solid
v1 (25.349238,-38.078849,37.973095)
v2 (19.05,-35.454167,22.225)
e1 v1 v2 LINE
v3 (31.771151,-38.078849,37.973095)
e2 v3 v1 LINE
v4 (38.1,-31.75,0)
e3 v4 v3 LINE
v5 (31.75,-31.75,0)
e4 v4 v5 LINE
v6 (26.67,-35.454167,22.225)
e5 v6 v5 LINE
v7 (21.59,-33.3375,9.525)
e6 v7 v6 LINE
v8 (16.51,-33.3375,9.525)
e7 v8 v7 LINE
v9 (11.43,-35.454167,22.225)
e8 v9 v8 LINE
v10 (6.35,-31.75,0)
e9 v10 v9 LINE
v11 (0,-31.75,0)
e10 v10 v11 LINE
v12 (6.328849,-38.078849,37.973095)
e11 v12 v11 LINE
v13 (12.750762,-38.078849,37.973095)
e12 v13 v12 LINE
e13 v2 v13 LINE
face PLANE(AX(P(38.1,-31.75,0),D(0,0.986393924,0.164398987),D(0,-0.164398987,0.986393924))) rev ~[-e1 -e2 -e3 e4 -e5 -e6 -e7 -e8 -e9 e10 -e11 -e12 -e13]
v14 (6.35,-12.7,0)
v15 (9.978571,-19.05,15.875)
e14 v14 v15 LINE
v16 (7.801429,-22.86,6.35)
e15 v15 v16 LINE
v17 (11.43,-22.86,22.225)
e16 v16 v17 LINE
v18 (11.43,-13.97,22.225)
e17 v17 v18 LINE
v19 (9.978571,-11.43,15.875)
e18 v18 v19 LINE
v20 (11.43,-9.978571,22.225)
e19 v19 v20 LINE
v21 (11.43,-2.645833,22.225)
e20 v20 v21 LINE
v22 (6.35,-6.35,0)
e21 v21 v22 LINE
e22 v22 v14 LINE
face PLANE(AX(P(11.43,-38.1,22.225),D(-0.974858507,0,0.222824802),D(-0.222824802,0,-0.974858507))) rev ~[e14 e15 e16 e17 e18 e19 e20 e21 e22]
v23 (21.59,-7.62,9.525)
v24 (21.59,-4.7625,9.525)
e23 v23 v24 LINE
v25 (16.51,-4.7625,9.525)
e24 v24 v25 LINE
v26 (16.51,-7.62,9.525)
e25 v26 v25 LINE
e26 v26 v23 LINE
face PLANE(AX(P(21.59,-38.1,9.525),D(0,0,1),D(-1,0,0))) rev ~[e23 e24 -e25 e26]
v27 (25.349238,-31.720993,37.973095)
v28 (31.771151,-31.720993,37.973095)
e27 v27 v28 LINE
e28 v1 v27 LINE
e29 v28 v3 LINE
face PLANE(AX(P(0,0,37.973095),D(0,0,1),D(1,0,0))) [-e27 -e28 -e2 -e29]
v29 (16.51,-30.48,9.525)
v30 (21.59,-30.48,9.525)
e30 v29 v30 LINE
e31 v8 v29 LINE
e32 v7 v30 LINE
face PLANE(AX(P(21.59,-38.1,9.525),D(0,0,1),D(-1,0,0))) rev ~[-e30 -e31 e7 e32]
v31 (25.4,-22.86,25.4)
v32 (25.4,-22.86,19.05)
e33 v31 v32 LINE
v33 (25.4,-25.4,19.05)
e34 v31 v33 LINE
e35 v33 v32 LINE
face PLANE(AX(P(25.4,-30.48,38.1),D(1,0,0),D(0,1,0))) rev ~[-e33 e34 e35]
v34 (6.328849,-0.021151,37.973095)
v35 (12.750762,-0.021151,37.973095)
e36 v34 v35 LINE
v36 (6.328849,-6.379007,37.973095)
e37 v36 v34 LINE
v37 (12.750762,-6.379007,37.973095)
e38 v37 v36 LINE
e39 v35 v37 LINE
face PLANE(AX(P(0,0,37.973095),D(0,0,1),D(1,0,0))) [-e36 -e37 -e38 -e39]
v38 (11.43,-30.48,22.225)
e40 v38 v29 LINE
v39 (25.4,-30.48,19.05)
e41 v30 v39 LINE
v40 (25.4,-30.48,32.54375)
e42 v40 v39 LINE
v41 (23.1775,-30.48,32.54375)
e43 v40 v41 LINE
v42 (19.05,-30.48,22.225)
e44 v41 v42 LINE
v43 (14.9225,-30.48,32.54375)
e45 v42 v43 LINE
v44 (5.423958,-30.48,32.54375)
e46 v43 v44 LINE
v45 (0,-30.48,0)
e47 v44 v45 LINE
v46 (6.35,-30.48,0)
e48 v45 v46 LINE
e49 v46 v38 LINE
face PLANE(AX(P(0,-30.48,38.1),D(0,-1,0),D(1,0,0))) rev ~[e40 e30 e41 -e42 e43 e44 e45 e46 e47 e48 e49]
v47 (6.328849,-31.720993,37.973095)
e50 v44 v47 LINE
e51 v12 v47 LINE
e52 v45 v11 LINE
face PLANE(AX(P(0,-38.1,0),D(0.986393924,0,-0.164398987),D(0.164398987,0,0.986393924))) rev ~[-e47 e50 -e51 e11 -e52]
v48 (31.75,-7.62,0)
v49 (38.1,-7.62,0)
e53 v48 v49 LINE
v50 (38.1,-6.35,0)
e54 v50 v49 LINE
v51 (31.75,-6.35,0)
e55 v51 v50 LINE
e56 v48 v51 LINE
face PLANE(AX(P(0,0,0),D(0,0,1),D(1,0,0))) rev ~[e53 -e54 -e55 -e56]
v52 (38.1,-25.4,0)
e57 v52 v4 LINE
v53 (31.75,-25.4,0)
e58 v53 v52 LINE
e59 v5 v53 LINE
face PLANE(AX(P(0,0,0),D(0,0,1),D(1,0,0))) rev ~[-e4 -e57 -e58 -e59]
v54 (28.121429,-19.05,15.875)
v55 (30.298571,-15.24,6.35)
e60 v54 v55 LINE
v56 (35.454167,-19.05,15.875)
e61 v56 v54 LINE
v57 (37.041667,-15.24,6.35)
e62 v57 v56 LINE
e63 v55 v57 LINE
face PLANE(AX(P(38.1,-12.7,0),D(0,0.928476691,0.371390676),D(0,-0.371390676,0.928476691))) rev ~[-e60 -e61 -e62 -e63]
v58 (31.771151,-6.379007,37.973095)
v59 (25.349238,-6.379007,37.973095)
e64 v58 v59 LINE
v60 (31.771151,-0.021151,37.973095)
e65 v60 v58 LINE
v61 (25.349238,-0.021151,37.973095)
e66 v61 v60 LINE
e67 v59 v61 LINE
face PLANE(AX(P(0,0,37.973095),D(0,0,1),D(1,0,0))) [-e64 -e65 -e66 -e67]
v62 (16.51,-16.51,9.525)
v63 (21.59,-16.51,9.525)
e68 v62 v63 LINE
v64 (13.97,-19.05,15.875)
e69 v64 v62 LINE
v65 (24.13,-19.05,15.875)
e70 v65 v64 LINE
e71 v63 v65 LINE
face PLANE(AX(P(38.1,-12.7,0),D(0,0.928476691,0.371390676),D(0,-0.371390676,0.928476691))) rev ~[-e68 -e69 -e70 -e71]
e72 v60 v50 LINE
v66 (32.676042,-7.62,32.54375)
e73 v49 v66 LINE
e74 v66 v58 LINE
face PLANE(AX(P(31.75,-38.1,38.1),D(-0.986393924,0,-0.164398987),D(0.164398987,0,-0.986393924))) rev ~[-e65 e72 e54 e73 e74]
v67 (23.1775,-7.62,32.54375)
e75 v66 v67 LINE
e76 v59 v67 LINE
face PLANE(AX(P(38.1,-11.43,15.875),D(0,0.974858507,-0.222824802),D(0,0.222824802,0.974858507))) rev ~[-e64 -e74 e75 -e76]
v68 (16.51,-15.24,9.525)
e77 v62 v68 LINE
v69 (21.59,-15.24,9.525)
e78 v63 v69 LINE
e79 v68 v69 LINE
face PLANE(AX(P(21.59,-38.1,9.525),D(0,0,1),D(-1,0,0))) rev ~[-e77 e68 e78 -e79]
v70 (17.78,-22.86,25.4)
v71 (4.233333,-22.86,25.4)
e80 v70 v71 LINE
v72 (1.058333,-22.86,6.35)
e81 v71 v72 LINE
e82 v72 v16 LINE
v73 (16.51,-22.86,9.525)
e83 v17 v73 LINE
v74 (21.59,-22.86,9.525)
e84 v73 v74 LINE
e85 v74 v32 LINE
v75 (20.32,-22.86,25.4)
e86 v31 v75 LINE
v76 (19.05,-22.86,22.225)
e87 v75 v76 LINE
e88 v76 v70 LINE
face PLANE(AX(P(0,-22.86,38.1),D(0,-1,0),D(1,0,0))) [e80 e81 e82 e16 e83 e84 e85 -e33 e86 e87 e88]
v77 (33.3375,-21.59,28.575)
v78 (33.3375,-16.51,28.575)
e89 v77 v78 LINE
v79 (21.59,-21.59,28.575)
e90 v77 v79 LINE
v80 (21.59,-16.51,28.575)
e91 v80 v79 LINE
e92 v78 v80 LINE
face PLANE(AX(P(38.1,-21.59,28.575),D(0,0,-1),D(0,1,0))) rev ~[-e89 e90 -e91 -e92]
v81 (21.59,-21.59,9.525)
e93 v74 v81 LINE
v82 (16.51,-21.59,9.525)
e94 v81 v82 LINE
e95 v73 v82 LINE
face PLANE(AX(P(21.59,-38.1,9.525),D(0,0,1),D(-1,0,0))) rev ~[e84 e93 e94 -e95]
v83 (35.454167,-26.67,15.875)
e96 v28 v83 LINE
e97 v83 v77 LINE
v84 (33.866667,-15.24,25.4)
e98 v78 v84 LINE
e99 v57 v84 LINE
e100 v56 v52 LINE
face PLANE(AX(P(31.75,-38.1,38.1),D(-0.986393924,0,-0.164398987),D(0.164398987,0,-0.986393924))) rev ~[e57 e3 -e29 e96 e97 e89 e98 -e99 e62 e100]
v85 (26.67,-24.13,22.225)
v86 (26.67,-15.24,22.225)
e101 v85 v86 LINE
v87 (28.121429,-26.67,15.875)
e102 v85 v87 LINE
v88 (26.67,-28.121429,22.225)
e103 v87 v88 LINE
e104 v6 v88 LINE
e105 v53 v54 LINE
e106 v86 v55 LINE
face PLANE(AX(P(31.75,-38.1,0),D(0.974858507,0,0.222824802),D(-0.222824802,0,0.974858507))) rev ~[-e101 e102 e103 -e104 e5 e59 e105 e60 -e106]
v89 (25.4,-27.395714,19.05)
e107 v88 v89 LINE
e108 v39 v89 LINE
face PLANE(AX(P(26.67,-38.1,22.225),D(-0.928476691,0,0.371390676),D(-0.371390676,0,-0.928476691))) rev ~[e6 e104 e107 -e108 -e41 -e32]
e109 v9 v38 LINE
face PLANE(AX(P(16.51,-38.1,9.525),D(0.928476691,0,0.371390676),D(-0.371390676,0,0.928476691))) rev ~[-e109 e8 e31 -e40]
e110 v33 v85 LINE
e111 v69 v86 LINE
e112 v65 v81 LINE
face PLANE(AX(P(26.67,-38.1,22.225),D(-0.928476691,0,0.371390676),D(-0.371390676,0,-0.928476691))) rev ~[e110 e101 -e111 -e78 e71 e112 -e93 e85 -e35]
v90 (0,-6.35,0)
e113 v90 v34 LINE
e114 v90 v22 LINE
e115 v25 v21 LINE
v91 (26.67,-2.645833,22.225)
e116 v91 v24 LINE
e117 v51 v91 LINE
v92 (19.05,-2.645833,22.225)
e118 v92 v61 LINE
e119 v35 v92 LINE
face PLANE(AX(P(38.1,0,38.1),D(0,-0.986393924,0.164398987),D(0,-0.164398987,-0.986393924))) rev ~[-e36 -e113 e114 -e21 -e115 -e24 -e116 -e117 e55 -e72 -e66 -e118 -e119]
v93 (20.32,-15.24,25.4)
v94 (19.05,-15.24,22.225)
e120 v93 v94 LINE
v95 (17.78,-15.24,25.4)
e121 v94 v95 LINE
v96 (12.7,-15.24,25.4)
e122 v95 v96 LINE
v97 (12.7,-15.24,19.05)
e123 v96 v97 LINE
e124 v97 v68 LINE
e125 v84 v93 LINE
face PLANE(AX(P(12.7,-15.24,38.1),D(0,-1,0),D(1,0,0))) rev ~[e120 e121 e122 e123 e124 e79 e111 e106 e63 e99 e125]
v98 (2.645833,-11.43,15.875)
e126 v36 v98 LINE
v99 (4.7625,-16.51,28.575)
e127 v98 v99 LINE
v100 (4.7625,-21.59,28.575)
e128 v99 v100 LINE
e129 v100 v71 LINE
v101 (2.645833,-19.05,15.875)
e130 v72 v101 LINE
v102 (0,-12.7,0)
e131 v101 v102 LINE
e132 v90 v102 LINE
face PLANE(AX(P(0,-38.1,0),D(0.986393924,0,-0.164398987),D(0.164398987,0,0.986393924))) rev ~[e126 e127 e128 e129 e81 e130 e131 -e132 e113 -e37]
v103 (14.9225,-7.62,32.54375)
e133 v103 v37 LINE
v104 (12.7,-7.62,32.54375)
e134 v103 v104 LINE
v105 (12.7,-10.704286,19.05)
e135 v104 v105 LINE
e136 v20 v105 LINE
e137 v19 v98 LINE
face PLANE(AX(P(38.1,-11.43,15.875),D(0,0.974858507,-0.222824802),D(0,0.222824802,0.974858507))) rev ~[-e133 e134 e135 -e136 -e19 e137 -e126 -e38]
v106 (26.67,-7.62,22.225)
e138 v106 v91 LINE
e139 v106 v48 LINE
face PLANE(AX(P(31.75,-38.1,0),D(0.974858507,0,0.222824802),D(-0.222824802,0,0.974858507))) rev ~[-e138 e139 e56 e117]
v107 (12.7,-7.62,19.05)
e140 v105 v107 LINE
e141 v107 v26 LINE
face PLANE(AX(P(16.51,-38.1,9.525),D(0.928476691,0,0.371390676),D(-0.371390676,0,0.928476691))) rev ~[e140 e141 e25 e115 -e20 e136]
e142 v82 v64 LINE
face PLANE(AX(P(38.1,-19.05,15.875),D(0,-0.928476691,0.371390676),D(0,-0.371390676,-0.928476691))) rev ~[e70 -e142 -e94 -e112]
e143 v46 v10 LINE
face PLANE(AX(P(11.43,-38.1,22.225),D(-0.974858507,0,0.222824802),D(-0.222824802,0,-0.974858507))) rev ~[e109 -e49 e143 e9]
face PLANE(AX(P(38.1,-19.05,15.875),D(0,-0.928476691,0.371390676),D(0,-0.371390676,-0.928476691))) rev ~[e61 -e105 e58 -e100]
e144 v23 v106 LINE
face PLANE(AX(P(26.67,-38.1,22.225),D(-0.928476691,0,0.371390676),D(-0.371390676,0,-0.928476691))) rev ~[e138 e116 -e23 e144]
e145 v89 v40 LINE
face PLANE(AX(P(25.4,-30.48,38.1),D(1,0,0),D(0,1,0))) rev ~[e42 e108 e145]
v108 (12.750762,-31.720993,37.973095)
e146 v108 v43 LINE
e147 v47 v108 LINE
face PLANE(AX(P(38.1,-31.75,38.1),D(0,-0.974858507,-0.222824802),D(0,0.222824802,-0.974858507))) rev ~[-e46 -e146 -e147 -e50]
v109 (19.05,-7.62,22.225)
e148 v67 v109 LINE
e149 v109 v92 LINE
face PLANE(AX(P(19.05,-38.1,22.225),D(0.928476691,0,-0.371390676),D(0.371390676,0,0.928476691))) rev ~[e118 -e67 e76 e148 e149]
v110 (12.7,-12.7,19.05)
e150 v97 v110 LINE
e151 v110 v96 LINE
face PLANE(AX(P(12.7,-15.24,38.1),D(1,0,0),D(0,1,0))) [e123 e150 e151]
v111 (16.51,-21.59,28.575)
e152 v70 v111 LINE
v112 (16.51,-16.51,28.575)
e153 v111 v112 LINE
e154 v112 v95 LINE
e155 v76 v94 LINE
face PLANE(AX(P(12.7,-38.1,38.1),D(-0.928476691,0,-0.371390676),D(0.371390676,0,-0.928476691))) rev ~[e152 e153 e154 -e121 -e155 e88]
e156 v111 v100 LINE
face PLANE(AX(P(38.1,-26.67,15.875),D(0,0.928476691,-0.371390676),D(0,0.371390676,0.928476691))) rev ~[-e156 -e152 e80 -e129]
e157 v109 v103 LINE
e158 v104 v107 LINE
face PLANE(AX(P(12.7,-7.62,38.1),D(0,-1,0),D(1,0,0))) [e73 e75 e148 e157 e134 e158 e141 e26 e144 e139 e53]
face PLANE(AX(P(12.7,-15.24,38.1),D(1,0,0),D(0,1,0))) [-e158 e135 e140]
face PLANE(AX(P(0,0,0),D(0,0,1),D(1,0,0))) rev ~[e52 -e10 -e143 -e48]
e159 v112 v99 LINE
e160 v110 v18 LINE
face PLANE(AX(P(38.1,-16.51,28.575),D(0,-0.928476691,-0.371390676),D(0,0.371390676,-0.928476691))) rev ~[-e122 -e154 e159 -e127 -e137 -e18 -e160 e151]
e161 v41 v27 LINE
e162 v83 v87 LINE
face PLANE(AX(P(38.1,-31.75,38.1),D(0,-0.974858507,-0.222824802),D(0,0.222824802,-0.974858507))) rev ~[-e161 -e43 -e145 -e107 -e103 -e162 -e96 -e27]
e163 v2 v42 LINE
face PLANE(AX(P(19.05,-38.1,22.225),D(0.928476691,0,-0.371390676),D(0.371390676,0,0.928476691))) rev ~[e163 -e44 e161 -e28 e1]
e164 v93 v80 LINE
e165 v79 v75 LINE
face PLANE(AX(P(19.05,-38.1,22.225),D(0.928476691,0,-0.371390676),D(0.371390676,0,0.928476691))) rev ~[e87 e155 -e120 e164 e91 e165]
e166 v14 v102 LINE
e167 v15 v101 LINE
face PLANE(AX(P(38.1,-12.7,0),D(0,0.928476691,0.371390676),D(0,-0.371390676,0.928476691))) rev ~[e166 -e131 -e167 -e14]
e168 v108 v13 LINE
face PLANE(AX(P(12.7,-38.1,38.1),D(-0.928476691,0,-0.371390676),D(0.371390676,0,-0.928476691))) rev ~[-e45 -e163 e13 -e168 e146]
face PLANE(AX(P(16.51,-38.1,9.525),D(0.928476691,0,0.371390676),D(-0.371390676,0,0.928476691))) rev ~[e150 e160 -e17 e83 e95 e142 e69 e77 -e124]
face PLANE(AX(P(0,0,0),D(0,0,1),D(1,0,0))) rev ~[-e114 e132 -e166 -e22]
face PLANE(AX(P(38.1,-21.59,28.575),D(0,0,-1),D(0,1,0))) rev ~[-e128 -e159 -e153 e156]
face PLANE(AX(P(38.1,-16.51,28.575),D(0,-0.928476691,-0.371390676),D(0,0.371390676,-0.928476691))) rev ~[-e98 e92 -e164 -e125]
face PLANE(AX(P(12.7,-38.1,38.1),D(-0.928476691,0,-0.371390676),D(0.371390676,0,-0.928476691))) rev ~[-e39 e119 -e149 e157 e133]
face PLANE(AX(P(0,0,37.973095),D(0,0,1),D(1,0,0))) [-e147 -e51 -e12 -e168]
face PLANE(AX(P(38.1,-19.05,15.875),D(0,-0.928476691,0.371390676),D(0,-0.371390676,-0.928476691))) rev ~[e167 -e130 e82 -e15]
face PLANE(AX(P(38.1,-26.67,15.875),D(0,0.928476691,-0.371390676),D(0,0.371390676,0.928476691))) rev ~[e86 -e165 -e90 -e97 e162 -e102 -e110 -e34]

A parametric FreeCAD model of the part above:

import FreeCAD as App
import Part
import Sketcher
from FreeCAD import Vector
Q = App.Units.Quantity

doc = App.newDocument("Part")
body = doc.addObject("PartDesign::Body", "Body")

sketch1 = body.newObject("Sketcher::SketchObject", "Sketch")
sketch1.AttachmentSupport = (doc.getObject("XZ_Plane"), [""])
sketch1.MapMode = "FlatFace"
sketch1.addGeometry([
    Part.LineSegment(Vector(0, 38, 0), Vector(0, 0, 0)),
    Part.LineSegment(Vector(0, 0, 0), Vector(38, 0, 0)),
    Part.LineSegment(Vector(38, 0, 0), Vector(38, 38, 0)),
    Part.LineSegment(Vector(38, 38, 0), Vector(0, 38, 0)),
], False)
sketch1.addConstraint([
    Sketcher.Constraint("Coincident", 0, 2, 1, 1),
    Sketcher.Constraint("Coincident", 1, 2, 2, 1),
    Sketcher.Constraint("Coincident", 2, 2, 3, 1),
    Sketcher.Constraint("Coincident", 3, 2, 0, 1),
    Sketcher.Constraint("Vertical", 0),
    Sketcher.Constraint("Horizontal", 1),
    Sketcher.Constraint("Vertical", 2),
    Sketcher.Constraint("Horizontal", 3),
    Sketcher.Constraint("Coincident", 0, 2, -1, 1),
    Sketcher.Constraint("DistanceX", 1, 1, 1, 2, Q("1.5 in")),
    Sketcher.Constraint("DistanceY", 0, 2, 0, 1, 37.973095),
])
pad1 = body.newObject("PartDesign::Pad", "Pad")
pad1.Profile = sketch1
pad1.Length = Q("1.5 in")

sketch2 = body.newObject("Sketcher::SketchObject", "Sketch001")
sketch2.AttachmentSupport = (doc.getObject("YZ_Plane"), [""])
sketch2.MapMode = "FlatFace"
sketch2.AttachmentOffset = App.Placement(Vector(0, 0, 1.5 * 25.4), App.Rotation())
sketch2.addGeometry([
    Part.LineSegment(Vector(-11, 16, 0), Vector(-6, 38, 0)),
    Part.LineSegment(Vector(-6, 38, 0), Vector(-32, 38, 0)),
    Part.LineSegment(Vector(-32, 38, 0), Vector(-27, 16, 0)),
    Part.LineSegment(Vector(-27, 16, 0), Vector(-22, 29, 0)),
    Part.LineSegment(Vector(-22, 29, 0), Vector(-17, 29, 0)),
    Part.LineSegment(Vector(-17, 29, 0), Vector(-11, 16, 0)),
    Part.LineSegment(Vector(-6, 0, 0), Vector(0, 0, 0)),
    Part.LineSegment(Vector(0, 0, 0), Vector(0, 38, 0)),
    Part.LineSegment(Vector(0, 38, 0), Vector(-6, 0, 0)),
    Part.LineSegment(Vector(-25, 0, 0), Vector(-13, 0, 0)),
    Part.LineSegment(Vector(-13, 0, 0), Vector(-19, 16, 0)),
    Part.LineSegment(Vector(-19, 16, 0), Vector(-25, 0, 0)),
    Part.LineSegment(Vector(-32, 0, 0), Vector(-38, 38, 0)),
    Part.LineSegment(Vector(-38, 38, 0), Vector(-38, 0, 0)),
    Part.LineSegment(Vector(-38, 0, 0), Vector(-32, 0, 0)),
], False)
sketch2.addConstraint([
    Sketcher.Constraint("Coincident", 0, 2, 1, 1),
    Sketcher.Constraint("Coincident", 1, 2, 2, 1),
    Sketcher.Constraint("Coincident", 2, 2, 3, 1),
    Sketcher.Constraint("Coincident", 3, 2, 4, 1),
    Sketcher.Constraint("Coincident", 4, 2, 5, 1),
    Sketcher.Constraint("Coincident", 5, 2, 0, 1),
    Sketcher.Constraint("Coincident", 6, 2, 7, 1),
    Sketcher.Constraint("Coincident", 7, 2, 8, 1),
    Sketcher.Constraint("Coincident", 8, 2, 6, 1),
    Sketcher.Constraint("Coincident", 9, 2, 10, 1),
    Sketcher.Constraint("Coincident", 10, 2, 11, 1),
    Sketcher.Constraint("Coincident", 11, 2, 9, 1),
    Sketcher.Constraint("Coincident", 12, 2, 13, 1),
    Sketcher.Constraint("Coincident", 13, 2, 14, 1),
    Sketcher.Constraint("Coincident", 14, 2, 12, 1),
    Sketcher.Constraint("Horizontal", 1),
    Sketcher.Constraint("Horizontal", 4),
    Sketcher.Constraint("Horizontal", 6),
    Sketcher.Constraint("Vertical", 7),
    Sketcher.Constraint("Horizontal", 9),
    Sketcher.Constraint("Vertical", 13),
    Sketcher.Constraint("Horizontal", 14),
    Sketcher.Constraint("Coincident", 6, 2, -1, 1),
    Sketcher.Constraint("PointOnObject", 9, 2, -1),
    Sketcher.Constraint("PointOnObject", 13, 2, -1),
    Sketcher.Constraint("Parallel", 5, 10),
    Sketcher.Constraint("Parallel", 3, 11),
    Sketcher.Constraint("Horizontal", 2, 2, 5, 2),
    Sketcher.Constraint("Horizontal", 1, 2, 7, 2),
    Sketcher.Constraint("Horizontal", 5, 2, 10, 2),
    Sketcher.Constraint("Horizontal", 7, 2, 12, 2),
    Sketcher.Constraint("Vertical", 0, 2, 8, 2),
    Sketcher.Constraint("Vertical", 1, 2, 14, 2),
    Sketcher.Constraint("Equal", 6, 14),
    Sketcher.Constraint("Equal", 0, 2),
    Sketcher.Constraint("Equal", 3, 5),
    Sketcher.Constraint("DistanceX", 1, 2, 1, 1, Q("1 in")),
    Sketcher.Constraint("DistanceX", 4, 1, 4, 2, Q("0.2 in")),
    Sketcher.Constraint("DistanceX", 9, 1, 9, 2, Q("0.5 in")),
    Sketcher.Constraint("DistanceY", 7, 1, 7, 2, Q("1.5 in")),
    Sketcher.Constraint("DistanceX", 11, 2, -1, 1, Q("1 in")),
    Sketcher.Constraint("DistanceX", 13, 2, 9, 2, Q("1 in")),
    Sketcher.Constraint("DistanceX", 1, 2, 2, 2, Q("0.2 in")),
    Sketcher.Constraint("DistanceY", 2, 2, 3, 2, Q("0.5 in")),
])
pocket1 = body.newObject("PartDesign::Pocket", "Pocket")
pocket1.Profile = sketch2
pocket1.Length = Q("1.5 in")

sketch3 = body.newObject("Sketcher::SketchObject", "Sketch002")
sketch3.AttachmentSupport = (doc.getObject("XZ_Plane"), [""])
sketch3.MapMode = "FlatFace"
sketch3.AttachmentOffset = App.Placement(Vector(0, 0, 1.5 * 25.4), App.Rotation())
sketch3.addGeometry([
    Part.LineSegment(Vector(11, 22, 0), Vector(6, 0, 0)),
    Part.LineSegment(Vector(6, 0, 0), Vector(32, 0, 0)),
    Part.LineSegment(Vector(32, 0, 0), Vector(27, 22, 0)),
    Part.LineSegment(Vector(27, 22, 0), Vector(22, 10, 0)),
    Part.LineSegment(Vector(22, 10, 0), Vector(17, 10, 0)),
    Part.LineSegment(Vector(17, 10, 0), Vector(11, 22, 0)),
    Part.LineSegment(Vector(25, 38, 0), Vector(13, 38, 0)),
    Part.LineSegment(Vector(13, 38, 0), Vector(19, 22, 0)),
    Part.LineSegment(Vector(19, 22, 0), Vector(25, 38, 0)),
    Part.LineSegment(Vector(32, 38, 0), Vector(38, 0, 0)),
    Part.LineSegment(Vector(38, 0, 0), Vector(38, 38, 0)),
    Part.LineSegment(Vector(38, 38, 0), Vector(32, 38, 0)),
    Part.LineSegment(Vector(0, 38, 0), Vector(0, 0, 0)),
    Part.LineSegment(Vector(0, 0, 0), Vector(6, 38, 0)),
    Part.LineSegment(Vector(6, 38, 0), Vector(0, 38, 0)),
], False)
sketch3.addConstraint([
    Sketcher.Constraint("Coincident", 0, 2, 1, 1),
    Sketcher.Constraint("Coincident", 1, 2, 2, 1),
    Sketcher.Constraint("Coincident", 2, 2, 3, 1),
    Sketcher.Constraint("Coincident", 3, 2, 4, 1),
    Sketcher.Constraint("Coincident", 4, 2, 5, 1),
    Sketcher.Constraint("Coincident", 5, 2, 0, 1),
    Sketcher.Constraint("Coincident", 6, 2, 7, 1),
    Sketcher.Constraint("Coincident", 7, 2, 8, 1),
    Sketcher.Constraint("Coincident", 8, 2, 6, 1),
    Sketcher.Constraint("Coincident", 9, 2, 10, 1),
    Sketcher.Constraint("Coincident", 10, 2, 11, 1),
    Sketcher.Constraint("Coincident", 11, 2, 9, 1),
    Sketcher.Constraint("Coincident", 12, 2, 13, 1),
    Sketcher.Constraint("Coincident", 13, 2, 14, 1),
    Sketcher.Constraint("Coincident", 14, 2, 12, 1),
    Sketcher.Constraint("Horizontal", 1),
    Sketcher.Constraint("Horizontal", 4),
    Sketcher.Constraint("Horizontal", 6),
    Sketcher.Constraint("Vertical", 10),
    Sketcher.Constraint("Horizontal", 11),
    Sketcher.Constraint("Vertical", 12),
    Sketcher.Constraint("Horizontal", 14),
    Sketcher.Constraint("Coincident", 12, 2, -1, 1),
    Sketcher.Constraint("PointOnObject", 0, 2, -1),
    Sketcher.Constraint("PointOnObject", 9, 2, -1),
    Sketcher.Constraint("Parallel", 5, 7),
    Sketcher.Constraint("Parallel", 3, 8),
    Sketcher.Constraint("Horizontal", 2, 2, 5, 2),
    Sketcher.Constraint("Horizontal", 5, 2, 7, 2),
    Sketcher.Constraint("Horizontal", 8, 2, 10, 2),
    Sketcher.Constraint("Horizontal", 11, 2, 13, 2),
    Sketcher.Constraint("Vertical", 1, 2, 11, 2),
    Sketcher.Constraint("Vertical", 0, 2, 13, 2),
    Sketcher.Constraint("Equal", 11, 14),
    Sketcher.Constraint("Equal", 0, 2),
    Sketcher.Constraint("Equal", 3, 5),
    Sketcher.Constraint("DistanceX", 1, 1, 1, 2, Q("1 in")),
    Sketcher.Constraint("DistanceX", 4, 2, 4, 1, Q("0.2 in")),
    Sketcher.Constraint("DistanceX", 6, 2, 6, 1, Q("0.5 in")),
    Sketcher.Constraint("DistanceY", 10, 1, 10, 2, Q("1.5 in")),
    Sketcher.Constraint("DistanceX", -1, 1, 8, 2, Q("1 in")),
    Sketcher.Constraint("DistanceX", 6, 2, 10, 2, Q("1 in")),
    Sketcher.Constraint("DistanceX", 2, 2, 1, 2, Q("0.2 in")),
    Sketcher.Constraint("DistanceY", 3, 2, 2, 2, Q("0.5 in")),
])
pocket2 = body.newObject("PartDesign::Pocket", "Pocket001")
pocket2.Profile = sketch3
pocket2.Length = Q("1.5 in")

sketch4 = body.newObject("Sketcher::SketchObject", "Sketch003")
sketch4.AttachmentSupport = (doc.getObject("XY_Plane"), [""])
sketch4.MapMode = "FlatFace"
sketch4.AttachmentOffset = App.Placement(Vector(0, 0, 1.5 * 25.4), App.Rotation())
sketch4.addGeometry([
    Part.LineSegment(Vector(13, -8, 0), Vector(13, -15, 0)),
    Part.LineSegment(Vector(13, -15, 0), Vector(38, -15, 0)),
    Part.LineSegment(Vector(38, -15, 0), Vector(38, -8, 0)),
    Part.LineSegment(Vector(38, -8, 0), Vector(13, -8, 0)),
    Part.LineSegment(Vector(0, -23, 0), Vector(0, -30, 0)),
    Part.LineSegment(Vector(0, -30, 0), Vector(25, -30, 0)),
    Part.LineSegment(Vector(25, -30, 0), Vector(25, -23, 0)),
    Part.LineSegment(Vector(25, -23, 0), Vector(0, -23, 0)),
], False)
sketch4.addConstraint([
    Sketcher.Constraint("Coincident", 0, 2, 1, 1),
    Sketcher.Constraint("Coincident", 1, 2, 2, 1),
    Sketcher.Constraint("Coincident", 2, 2, 3, 1),
    Sketcher.Constraint("Coincident", 3, 2, 0, 1),
    Sketcher.Constraint("Coincident", 4, 2, 5, 1),
    Sketcher.Constraint("Coincident", 5, 2, 6, 1),
    Sketcher.Constraint("Coincident", 6, 2, 7, 1),
    Sketcher.Constraint("Coincident", 7, 2, 4, 1),
    Sketcher.Constraint("Vertical", 0),
    Sketcher.Constraint("Horizontal", 1),
    Sketcher.Constraint("Vertical", 2),
    Sketcher.Constraint("Horizontal", 3),
    Sketcher.Constraint("Vertical", 4),
    Sketcher.Constraint("Horizontal", 5),
    Sketcher.Constraint("Vertical", 6),
    Sketcher.Constraint("Horizontal", 7),
    Sketcher.Constraint("PointOnObject", 4, 2, -2),
    Sketcher.Constraint("Equal", 3, 5),
    Sketcher.Constraint("Equal", 2, 4),
    Sketcher.Constraint("DistanceX", 1, 1, 1, 2, Q("1 in")),
    Sketcher.Constraint("DistanceY", 0, 2, 0, 1, Q("0.3 in")),
    Sketcher.Constraint("DistanceX", -1, 1, 0, 2, Q("0.5 in")),
    Sketcher.Constraint("DistanceY", 0, 2, -1, 1, Q("0.6 in")),
    Sketcher.Constraint("DistanceY", 4, 2, -1, 1, Q("1.2 in")),
])
pocket3 = body.newObject("PartDesign::Pocket", "Pocket002")
pocket3.Profile = sketch4
pocket3.Length = Q("1.5 in")

doc.recompute()
